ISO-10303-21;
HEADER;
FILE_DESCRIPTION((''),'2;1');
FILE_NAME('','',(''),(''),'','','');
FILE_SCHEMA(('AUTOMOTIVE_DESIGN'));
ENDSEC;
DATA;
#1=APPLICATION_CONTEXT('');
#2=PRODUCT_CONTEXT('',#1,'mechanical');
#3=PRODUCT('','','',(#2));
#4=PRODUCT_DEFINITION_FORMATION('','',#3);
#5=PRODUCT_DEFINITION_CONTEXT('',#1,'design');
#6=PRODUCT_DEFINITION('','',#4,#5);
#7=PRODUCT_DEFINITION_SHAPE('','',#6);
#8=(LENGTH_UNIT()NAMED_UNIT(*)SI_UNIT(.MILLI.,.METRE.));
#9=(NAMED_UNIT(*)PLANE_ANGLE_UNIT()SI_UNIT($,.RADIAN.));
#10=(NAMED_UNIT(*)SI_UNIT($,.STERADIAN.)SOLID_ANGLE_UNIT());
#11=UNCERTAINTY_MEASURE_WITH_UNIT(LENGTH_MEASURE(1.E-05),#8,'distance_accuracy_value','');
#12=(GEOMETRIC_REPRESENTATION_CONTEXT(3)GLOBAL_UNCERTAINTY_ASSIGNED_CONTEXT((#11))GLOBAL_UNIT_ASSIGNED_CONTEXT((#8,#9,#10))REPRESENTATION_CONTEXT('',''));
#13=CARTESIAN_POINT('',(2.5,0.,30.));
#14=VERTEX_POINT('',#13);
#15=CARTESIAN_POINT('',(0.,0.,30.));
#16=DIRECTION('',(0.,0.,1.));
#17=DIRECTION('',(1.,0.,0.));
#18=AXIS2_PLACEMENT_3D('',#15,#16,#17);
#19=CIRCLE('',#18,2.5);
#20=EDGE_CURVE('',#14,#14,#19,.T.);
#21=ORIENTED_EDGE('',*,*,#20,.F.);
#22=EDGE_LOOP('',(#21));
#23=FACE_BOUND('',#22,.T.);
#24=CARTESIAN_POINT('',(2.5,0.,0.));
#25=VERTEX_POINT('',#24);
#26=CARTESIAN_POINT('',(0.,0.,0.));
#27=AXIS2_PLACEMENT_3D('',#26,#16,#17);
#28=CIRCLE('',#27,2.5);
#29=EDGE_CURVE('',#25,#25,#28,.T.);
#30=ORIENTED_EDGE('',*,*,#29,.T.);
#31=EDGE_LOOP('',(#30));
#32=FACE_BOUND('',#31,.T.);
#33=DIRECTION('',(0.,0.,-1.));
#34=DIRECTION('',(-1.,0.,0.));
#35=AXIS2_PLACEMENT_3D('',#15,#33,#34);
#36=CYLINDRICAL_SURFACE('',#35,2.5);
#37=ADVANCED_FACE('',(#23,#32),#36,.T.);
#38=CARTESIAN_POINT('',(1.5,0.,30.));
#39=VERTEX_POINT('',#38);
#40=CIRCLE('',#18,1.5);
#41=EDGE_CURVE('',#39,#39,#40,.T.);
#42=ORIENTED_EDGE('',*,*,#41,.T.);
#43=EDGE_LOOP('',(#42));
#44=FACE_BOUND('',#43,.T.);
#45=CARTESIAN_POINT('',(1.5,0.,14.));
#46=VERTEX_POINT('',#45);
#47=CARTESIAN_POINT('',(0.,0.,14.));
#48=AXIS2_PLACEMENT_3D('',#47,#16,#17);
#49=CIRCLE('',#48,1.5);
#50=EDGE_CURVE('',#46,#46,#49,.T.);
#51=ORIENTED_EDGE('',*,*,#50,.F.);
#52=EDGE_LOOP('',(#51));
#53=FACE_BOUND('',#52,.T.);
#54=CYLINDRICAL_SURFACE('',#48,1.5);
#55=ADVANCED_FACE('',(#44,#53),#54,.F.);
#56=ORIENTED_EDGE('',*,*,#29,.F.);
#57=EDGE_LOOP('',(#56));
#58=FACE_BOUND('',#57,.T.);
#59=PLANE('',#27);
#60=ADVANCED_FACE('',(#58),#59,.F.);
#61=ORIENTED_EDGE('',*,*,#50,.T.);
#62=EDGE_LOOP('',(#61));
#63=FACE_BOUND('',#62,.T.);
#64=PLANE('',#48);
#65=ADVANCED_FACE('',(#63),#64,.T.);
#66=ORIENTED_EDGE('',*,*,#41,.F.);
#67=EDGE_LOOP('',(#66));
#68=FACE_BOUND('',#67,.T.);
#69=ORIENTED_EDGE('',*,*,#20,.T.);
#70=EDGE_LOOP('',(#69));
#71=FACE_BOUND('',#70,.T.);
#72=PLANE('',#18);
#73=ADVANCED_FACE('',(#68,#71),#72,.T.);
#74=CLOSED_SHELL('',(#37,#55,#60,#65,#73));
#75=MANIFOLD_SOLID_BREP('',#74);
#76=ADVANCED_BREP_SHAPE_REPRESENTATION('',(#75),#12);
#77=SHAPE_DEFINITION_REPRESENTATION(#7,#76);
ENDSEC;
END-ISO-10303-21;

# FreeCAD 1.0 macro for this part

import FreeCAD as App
import Part
import Sketcher
from FreeCAD import Vector
Q = App.Units.Quantity

doc = App.newDocument("Part")
body = doc.addObject("PartDesign::Body", "Body")

# Sketch on XY plane
sketch1 = body.newObject("Sketcher::SketchObject", "Sketch")
sketch1.AttachmentSupport = (doc.getObject("XY_Plane"), [""])
sketch1.MapMode = "FlatFace"
sketch1.addGeometry(Part.Circle(Vector(0, 0, 0), Vector(0, 0, 1), 2.5), False)
sketch1.addConstraint([
    Sketcher.Constraint("Coincident", 0, 3, -1, 1),
    Sketcher.Constraint("Diameter", 0, Q("5 mm")),
])
pad1 = body.newObject("PartDesign::Pad", "Pad")
pad1.Profile = sketch1
pad1.Length = 30

# Sketch on XY plane
sketch2 = body.newObject("Sketcher::SketchObject", "Sketch001")
sketch2.AttachmentSupport = (doc.getObject("XY_Plane"), [""])
sketch2.MapMode = "FlatFace"
sketch2.AttachmentOffset = App.Placement(Vector(0, 0, 30), App.Rotation())
sketch2.addGeometry(Part.Circle(Vector(0, 0, 0), Vector(0, 0, 1), 1.5), False)
sketch2.addConstraint([
    Sketcher.Constraint("Coincident", 0, 3, -1, 1),
    Sketcher.Constraint("Diameter", 0, Q("3 mm")),
])
pocket1 = body.newObject("PartDesign::Pocket", "Pocket")
pocket1.Profile = sketch2
pocket1.Length = 16

doc.recompute()
